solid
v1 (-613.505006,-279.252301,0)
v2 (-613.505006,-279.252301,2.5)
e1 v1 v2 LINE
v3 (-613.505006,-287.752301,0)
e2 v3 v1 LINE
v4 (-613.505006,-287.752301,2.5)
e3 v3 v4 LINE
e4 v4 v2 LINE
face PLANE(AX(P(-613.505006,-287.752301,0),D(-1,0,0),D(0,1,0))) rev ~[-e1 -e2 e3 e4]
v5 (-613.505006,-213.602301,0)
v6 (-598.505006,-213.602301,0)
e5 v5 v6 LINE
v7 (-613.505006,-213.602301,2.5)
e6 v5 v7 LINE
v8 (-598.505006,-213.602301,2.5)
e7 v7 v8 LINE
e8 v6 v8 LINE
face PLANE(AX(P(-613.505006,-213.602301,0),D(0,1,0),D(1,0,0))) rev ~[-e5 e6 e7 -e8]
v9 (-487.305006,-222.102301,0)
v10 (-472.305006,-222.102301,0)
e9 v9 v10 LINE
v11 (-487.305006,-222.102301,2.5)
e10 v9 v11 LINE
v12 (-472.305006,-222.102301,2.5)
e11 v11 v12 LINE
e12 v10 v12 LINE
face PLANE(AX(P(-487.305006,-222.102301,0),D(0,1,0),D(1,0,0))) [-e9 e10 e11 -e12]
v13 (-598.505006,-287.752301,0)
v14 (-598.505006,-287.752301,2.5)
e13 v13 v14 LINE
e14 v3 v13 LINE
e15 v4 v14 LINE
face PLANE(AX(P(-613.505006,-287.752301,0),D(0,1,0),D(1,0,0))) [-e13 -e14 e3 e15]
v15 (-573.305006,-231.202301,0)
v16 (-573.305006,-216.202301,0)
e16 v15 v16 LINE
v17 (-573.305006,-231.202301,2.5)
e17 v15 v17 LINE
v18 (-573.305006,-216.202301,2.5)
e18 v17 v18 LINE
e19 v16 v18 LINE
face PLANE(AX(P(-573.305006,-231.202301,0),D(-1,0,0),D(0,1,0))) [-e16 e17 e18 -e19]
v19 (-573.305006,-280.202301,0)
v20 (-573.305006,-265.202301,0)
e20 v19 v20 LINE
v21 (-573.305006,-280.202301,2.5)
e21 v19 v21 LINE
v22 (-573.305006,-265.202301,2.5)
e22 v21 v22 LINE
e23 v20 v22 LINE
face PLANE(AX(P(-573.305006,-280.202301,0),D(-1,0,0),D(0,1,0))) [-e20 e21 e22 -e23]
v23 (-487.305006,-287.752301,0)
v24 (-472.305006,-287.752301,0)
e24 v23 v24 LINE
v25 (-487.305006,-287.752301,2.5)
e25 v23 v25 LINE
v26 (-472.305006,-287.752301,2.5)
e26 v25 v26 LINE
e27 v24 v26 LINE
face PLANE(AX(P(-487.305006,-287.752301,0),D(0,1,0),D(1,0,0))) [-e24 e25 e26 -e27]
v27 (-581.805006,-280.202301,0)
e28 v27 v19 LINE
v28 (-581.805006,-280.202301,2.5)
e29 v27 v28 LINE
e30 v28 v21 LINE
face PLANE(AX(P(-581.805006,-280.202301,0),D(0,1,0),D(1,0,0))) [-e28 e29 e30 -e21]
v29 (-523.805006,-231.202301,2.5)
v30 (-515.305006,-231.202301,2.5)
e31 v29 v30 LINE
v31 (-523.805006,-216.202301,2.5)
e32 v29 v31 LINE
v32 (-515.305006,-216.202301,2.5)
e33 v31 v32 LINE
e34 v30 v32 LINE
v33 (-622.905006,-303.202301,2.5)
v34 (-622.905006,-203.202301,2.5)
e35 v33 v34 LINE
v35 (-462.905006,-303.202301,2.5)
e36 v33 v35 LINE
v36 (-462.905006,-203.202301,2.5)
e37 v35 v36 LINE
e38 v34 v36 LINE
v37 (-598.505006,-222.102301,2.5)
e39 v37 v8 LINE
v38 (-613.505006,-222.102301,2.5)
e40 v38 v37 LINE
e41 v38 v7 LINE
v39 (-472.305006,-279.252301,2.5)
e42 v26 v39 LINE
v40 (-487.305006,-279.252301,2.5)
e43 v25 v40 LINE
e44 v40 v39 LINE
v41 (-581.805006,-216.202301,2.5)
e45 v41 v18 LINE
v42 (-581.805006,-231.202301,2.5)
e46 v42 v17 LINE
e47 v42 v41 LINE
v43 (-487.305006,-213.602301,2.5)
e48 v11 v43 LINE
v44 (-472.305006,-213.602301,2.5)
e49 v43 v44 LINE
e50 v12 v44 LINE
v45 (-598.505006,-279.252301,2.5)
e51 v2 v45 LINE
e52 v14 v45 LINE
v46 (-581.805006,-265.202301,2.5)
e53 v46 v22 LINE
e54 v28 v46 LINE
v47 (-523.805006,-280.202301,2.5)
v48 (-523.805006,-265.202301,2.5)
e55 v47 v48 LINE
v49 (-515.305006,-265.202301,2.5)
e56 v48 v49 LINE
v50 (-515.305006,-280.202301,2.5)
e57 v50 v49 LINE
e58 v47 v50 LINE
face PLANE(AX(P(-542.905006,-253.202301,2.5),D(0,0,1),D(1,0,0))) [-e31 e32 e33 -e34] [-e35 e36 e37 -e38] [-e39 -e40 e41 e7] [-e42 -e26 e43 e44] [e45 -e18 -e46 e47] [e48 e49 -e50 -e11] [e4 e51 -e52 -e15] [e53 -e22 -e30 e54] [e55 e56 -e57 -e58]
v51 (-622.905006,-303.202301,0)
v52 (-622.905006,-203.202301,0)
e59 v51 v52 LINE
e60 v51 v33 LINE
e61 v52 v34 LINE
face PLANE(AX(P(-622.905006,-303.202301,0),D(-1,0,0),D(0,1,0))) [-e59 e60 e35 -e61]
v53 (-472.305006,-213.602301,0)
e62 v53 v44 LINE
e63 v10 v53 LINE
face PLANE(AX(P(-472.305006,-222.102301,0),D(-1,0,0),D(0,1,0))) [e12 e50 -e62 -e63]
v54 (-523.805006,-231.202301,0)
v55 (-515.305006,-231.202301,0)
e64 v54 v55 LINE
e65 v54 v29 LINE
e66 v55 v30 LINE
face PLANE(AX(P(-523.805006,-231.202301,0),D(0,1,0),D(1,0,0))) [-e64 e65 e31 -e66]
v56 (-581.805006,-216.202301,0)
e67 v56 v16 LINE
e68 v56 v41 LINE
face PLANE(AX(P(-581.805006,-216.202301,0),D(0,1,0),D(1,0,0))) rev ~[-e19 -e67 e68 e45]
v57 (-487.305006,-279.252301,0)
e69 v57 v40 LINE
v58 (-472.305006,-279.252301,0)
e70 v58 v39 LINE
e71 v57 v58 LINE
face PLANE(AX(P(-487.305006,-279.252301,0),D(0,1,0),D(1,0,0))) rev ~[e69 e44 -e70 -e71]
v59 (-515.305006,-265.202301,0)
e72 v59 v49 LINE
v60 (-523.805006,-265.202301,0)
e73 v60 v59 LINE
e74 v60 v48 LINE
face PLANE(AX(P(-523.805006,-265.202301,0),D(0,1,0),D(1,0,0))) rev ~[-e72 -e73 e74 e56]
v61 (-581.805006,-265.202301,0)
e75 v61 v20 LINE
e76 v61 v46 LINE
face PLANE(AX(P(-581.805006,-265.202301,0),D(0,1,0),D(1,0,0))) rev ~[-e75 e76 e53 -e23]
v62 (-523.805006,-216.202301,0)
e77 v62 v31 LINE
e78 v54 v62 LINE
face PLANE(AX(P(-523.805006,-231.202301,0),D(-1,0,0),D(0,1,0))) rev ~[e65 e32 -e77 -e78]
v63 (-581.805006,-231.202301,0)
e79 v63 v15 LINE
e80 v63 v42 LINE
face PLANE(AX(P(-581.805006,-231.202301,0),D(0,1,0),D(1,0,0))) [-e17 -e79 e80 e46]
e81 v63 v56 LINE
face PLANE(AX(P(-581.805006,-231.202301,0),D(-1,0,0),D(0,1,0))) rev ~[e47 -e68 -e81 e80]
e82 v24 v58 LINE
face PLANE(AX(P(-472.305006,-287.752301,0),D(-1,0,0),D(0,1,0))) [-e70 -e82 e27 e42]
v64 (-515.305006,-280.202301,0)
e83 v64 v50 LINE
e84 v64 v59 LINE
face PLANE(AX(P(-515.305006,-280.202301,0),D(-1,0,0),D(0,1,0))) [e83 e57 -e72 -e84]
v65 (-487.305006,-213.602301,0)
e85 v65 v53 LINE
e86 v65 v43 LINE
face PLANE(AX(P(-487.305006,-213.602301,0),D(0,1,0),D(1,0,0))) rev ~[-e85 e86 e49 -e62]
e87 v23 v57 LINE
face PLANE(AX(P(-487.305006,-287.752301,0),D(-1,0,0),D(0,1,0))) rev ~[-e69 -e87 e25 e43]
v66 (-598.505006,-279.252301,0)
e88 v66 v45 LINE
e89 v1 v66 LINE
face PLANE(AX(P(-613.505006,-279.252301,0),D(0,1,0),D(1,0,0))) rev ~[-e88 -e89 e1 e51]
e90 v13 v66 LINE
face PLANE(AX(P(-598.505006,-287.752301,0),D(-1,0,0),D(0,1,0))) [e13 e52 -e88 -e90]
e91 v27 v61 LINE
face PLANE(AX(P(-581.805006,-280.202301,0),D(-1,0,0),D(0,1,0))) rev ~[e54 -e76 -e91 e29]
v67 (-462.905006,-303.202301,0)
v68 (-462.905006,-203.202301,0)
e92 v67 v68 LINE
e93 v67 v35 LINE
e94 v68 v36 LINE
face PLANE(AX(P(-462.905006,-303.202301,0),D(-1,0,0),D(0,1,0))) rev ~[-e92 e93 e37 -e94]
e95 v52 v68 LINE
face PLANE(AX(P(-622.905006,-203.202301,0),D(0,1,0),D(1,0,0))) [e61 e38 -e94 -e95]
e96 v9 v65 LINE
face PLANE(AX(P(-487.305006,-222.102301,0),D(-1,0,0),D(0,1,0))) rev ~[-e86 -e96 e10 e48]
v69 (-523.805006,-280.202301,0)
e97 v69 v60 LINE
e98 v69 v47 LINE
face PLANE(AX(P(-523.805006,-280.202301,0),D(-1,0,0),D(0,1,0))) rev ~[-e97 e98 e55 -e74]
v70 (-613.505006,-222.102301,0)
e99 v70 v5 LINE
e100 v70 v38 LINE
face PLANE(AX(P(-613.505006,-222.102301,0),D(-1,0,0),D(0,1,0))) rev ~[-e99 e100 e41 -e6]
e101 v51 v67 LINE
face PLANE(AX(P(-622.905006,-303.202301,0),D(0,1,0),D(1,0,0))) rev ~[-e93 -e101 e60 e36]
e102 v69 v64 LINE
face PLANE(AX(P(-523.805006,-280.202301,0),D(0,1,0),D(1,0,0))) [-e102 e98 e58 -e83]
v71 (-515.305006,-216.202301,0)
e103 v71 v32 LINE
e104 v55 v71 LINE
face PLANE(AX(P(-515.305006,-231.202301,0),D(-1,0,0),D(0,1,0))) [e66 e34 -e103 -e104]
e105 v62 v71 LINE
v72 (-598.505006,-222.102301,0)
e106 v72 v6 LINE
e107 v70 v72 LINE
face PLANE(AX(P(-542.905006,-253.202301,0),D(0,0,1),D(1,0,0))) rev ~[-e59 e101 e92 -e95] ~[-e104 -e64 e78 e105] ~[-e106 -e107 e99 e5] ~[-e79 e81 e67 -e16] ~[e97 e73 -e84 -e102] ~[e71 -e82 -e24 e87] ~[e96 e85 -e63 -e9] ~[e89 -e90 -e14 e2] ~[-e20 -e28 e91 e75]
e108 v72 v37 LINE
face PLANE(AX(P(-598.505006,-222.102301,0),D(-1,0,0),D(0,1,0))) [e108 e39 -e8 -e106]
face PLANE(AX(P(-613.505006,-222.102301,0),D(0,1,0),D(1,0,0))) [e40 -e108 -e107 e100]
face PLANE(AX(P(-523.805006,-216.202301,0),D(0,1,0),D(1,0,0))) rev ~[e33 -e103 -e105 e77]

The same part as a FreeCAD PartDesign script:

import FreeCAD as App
import Part
import Sketcher
from FreeCAD import Vector
Q = App.Units.Quantity

doc = App.newDocument("Part")
body = doc.addObject("PartDesign::Body", "Body")

sketch1 = body.newObject("Sketcher::SketchObject", "Sketch")
sketch1.AttachmentSupport = (doc.getObject("XY_Plane"), [""])
sketch1.MapMode = "FlatFace"
sketch1.addGeometry([
    Part.LineSegment(Vector(-622.905006, -203.202301, 0), Vector(-622.905006, -303.202301, 0)),
    Part.LineSegment(Vector(-622.905006, -303.202301, 0), Vector(-462.905006, -303.202301, 0)),
    Part.LineSegment(Vector(-462.905006, -303.202301, 0), Vector(-462.905006, -203.202301, 0)),
    Part.LineSegment(Vector(-462.905006, -203.202301, 0), Vector(-622.905006, -203.202301, 0)),
    Part.LineSegment(Vector(-598.505006, -287.752301, 0), Vector(-613.505006, -287.752301, 0)),
    Part.LineSegment(Vector(-613.505006, -287.752301, 0), Vector(-613.505006, -279.252301, 0)),
    Part.LineSegment(Vector(-613.505006, -279.252301, 0), Vector(-598.505006, -279.252301, 0)),
    Part.LineSegment(Vector(-598.505006, -279.252301, 0), Vector(-598.505006, -287.752301, 0)),
    Part.LineSegment(Vector(-573.305006, -280.202301, 0), Vector(-581.805006, -280.202301, 0)),
    Part.LineSegment(Vector(-581.805006, -280.202301, 0), Vector(-581.805006, -265.202301, 0)),
    Part.LineSegment(Vector(-581.805006, -265.202301, 0), Vector(-573.305006, -265.202301, 0)),
    Part.LineSegment(Vector(-573.305006, -265.202301, 0), Vector(-573.305006, -280.202301, 0)),
    Part.LineSegment(Vector(-515.305006, -280.202301, 0), Vector(-523.805006, -280.202301, 0)),
    Part.LineSegment(Vector(-523.805006, -280.202301, 0), Vector(-523.805006, -265.202301, 0)),
    Part.LineSegment(Vector(-523.805006, -265.202301, 0), Vector(-515.305006, -265.202301, 0)),
    Part.LineSegment(Vector(-515.305006, -265.202301, 0), Vector(-515.305006, -280.202301, 0)),
    Part.LineSegment(Vector(-472.305006, -287.752301, 0), Vector(-487.305006, -287.752301, 0)),
    Part.LineSegment(Vector(-487.305006, -287.752301, 0), Vector(-487.305006, -279.252301, 0)),
    Part.LineSegment(Vector(-487.305006, -279.252301, 0), Vector(-472.305006, -279.252301, 0)),
    Part.LineSegment(Vector(-472.305006, -279.252301, 0), Vector(-472.305006, -287.752301, 0)),
    Part.LineSegment(Vector(-598.505006, -222.102301, 0), Vector(-613.505006, -222.102301, 0)),
    Part.LineSegment(Vector(-613.505006, -222.102301, 0), Vector(-613.505006, -213.602301, 0)),
    Part.LineSegment(Vector(-613.505006, -213.602301, 0), Vector(-598.505006, -213.602301, 0)),
    Part.LineSegment(Vector(-598.505006, -213.602301, 0), Vector(-598.505006, -222.102301, 0)),
    Part.LineSegment(Vector(-573.305006, -231.202301, 0), Vector(-581.805006, -231.202301, 0)),
    Part.LineSegment(Vector(-581.805006, -231.202301, 0), Vector(-581.805006, -216.202301, 0)),
    Part.LineSegment(Vector(-581.805006, -216.202301, 0), Vector(-573.305006, -216.202301, 0)),
    Part.LineSegment(Vector(-573.305006, -216.202301, 0), Vector(-573.305006, -231.202301, 0)),
    Part.LineSegment(Vector(-515.305006, -231.202301, 0), Vector(-523.805006, -231.202301, 0)),
    Part.LineSegment(Vector(-523.805006, -231.202301, 0), Vector(-523.805006, -216.202301, 0)),
    Part.LineSegment(Vector(-523.805006, -216.202301, 0), Vector(-515.305006, -216.202301, 0)),
    Part.LineSegment(Vector(-515.305006, -216.202301, 0), Vector(-515.305006, -231.202301, 0)),
    Part.LineSegment(Vector(-472.305006, -222.102301, 0), Vector(-487.305006, -222.102301, 0)),
    Part.LineSegment(Vector(-487.305006, -222.102301, 0), Vector(-487.305006, -213.602301, 0)),
    Part.LineSegment(Vector(-487.305006, -213.602301, 0), Vector(-472.305006, -213.602301, 0)),
    Part.LineSegment(Vector(-472.305006, -213.602301, 0), Vector(-472.305006, -222.102301, 0)),
], False)
sketch1.addConstraint([
    Sketcher.Constraint("Coincident", 0, 2, 1, 1),
    Sketcher.Constraint("Coincident", 1, 2, 2, 1),
    Sketcher.Constraint("Coincident", 2, 2, 3, 1),
    Sketcher.Constraint("Coincident", 3, 2, 0, 1),
    Sketcher.Constraint("Coincident", 4, 2, 5, 1),
    Sketcher.Constraint("Coincident", 5, 2, 6, 1),
    Sketcher.Constraint("Coincident", 6, 2, 7, 1),
    Sketcher.Constraint("Coincident", 7, 2, 4, 1),
    Sketcher.Constraint("Coincident", 8, 2, 9, 1),
    Sketcher.Constraint("Coincident", 9, 2, 10, 1),
    Sketcher.Constraint("Coincident", 10, 2, 11, 1),
    Sketcher.Constraint("Coincident", 11, 2, 8, 1),
    Sketcher.Constraint("Coincident", 12, 2, 13, 1),
    Sketcher.Constraint("Coincident", 13, 2, 14, 1),
    Sketcher.Constraint("Coincident", 14, 2, 15, 1),
    Sketcher.Constraint("Coincident", 15, 2, 12, 1),
    Sketcher.Constraint("Coincident", 16, 2, 17, 1),
    Sketcher.Constraint("Coincident", 17, 2, 18, 1),
    Sketcher.Constraint("Coincident", 18, 2, 19, 1),
    Sketcher.Constraint("Coincident", 19, 2, 16, 1),
    Sketcher.Constraint("Coincident", 20, 2, 21, 1),
    Sketcher.Constraint("Coincident", 21, 2, 22, 1),
    Sketcher.Constraint("Coincident", 22, 2, 23, 1),
    Sketcher.Constraint("Coincident", 23, 2, 20, 1),
    Sketcher.Constraint("Coincident", 24, 2, 25, 1),
    Sketcher.Constraint("Coincident", 25, 2, 26, 1),
    Sketcher.Constraint("Coincident", 26, 2, 27, 1),
    Sketcher.Constraint("Coincident", 27, 2, 24, 1),
    Sketcher.Constraint("Coincident", 28, 2, 29, 1),
    Sketcher.Constraint("Coincident", 29, 2, 30, 1),
    Sketcher.Constraint("Coincident", 30, 2, 31, 1),
    Sketcher.Constraint("Coincident", 31, 2, 28, 1),
    Sketcher.Constraint("Coincident", 32, 2, 33, 1),
    Sketcher.Constraint("Coincident", 33, 2, 34, 1),
    Sketcher.Constraint("Coincident", 34, 2, 35, 1),
    Sketcher.Constraint("Coincident", 35, 2, 32, 1),
    Sketcher.Constraint("Vertical", 0),
    Sketcher.Constraint("Horizontal", 1),
    Sketcher.Constraint("Vertical", 2),
    Sketcher.Constraint("Horizontal", 3),
    Sketcher.Constraint("Horizontal", 4),
    Sketcher.Constraint("Vertical", 5),
    Sketcher.Constraint("Horizontal", 6),
    Sketcher.Constraint("Vertical", 7),
    Sketcher.Constraint("Horizontal", 8),
    Sketcher.Constraint("Vertical", 9),
    Sketcher.Constraint("Horizontal", 10),
    Sketcher.Constraint("Vertical", 11),
    Sketcher.Constraint("Horizontal", 12),
    Sketcher.Constraint("Vertical", 13),
    Sketcher.Constraint("Horizontal", 14),
    Sketcher.Constraint("Vertical", 15),
    Sketcher.Constraint("Horizontal", 16),
    Sketcher.Constraint("Vertical", 17),
    Sketcher.Constraint("Horizontal", 18),
    Sketcher.Constraint("Vertical", 19),
    Sketcher.Constraint("Horizontal", 20),
    Sketcher.Constraint("Vertical", 21),
    Sketcher.Constraint("Horizontal", 22),
    Sketcher.Constraint("Vertical", 23),
    Sketcher.Constraint("Horizontal", 24),
    Sketcher.Constraint("Vertical", 25),
    Sketcher.Constraint("Horizontal", 26),
    Sketcher.Constraint("Vertical", 27),
    Sketcher.Constraint("Horizontal", 28),
    Sketcher.Constraint("Vertical", 29),
    Sketcher.Constraint("Horizontal", 30),
    Sketcher.Constraint("Vertical", 31),
    Sketcher.Constraint("Horizontal", 32),
    Sketcher.Constraint("Vertical", 33),
    Sketcher.Constraint("Horizontal", 34),
    Sketcher.Constraint("Vertical", 35),
    Sketcher.Constraint("Horizontal", 11, 2, 12, 2),
    Sketcher.Constraint("Horizontal", 10, 2, 13, 2),
    Sketcher.Constraint("Horizontal", 7, 2, 16, 2),
    Sketcher.Constraint("Horizontal", 6, 2, 17, 2),
    Sketcher.Constraint("Horizontal", 27, 2, 28, 2),
    Sketcher.Constraint("Horizontal", 26, 2, 29, 2),
    Sketcher.Constraint("Horizontal", 23, 2, 32, 2),
    Sketcher.Constraint("Horizontal", 22, 2, 33, 2),
    Sketcher.Constraint("Vertical", 5, 2, 20, 2),
    Sketcher.Constraint("Vertical", 7, 2, 22, 2),
    Sketcher.Constraint("Vertical", 9, 2, 24, 2),
    Sketcher.Constraint("Vertical", 11, 2, 26, 2),
    Sketcher.Constraint("Vertical", 13, 2, 28, 2),
    Sketcher.Constraint("Vertical", 15, 2, 30, 2),
    Sketcher.Constraint("Vertical", 17, 2, 32, 2),
    Sketcher.Constraint("Vertical", 19, 2, 34, 2),
    Sketcher.Constraint("Equal", 10, 12),
    Sketcher.Constraint("Equal", 6, 16),
    Sketcher.Constraint("Equal", 30, 5),
    Sketcher.Constraint("Equal", 34, 9),
    Sketcher.Constraint("Equal", 19, 21),
    Sketcher.Constraint("Equal", 15, 25),
    Sketcher.Constraint("DistanceX", 1, 1, 1, 2, Q("160 mm")),
    Sketcher.Constraint("DistanceX", 4, 2, 4, 1, Q("15 mm")),
    Sketcher.Constraint("DistanceY", 0, 2, 0, 1, Q("100 mm")),
    Sketcher.Constraint("DistanceX", 8, 2, 8, 1, Q("8.5 mm")),
    Sketcher.Constraint("DistanceY", 0, 2, 8, 2, Q("23 mm")),
    Sketcher.Constraint("DistanceX", 8, 2, 12, 2, Q("58 mm")),
    Sketcher.Constraint("DistanceX", 15, 2, 16, 2, Q("28 mm")),
    Sketcher.Constraint("DistanceY", 9, 2, 24, 2, Q("34 mm")),
    Sketcher.Constraint("DistanceX", 0, 2, 4, 2, Q("9.4 mm")),
    Sketcher.Constraint("DistanceX", 6, 2, 8, 2, Q("16.7 mm")),
    Sketcher.Constraint("DistanceY", 20, 2, 3, 2, Q("18.9 mm")),
    Sketcher.Constraint("DistanceY", 0, 2, 4, 2, Q("15.45 mm")),
    Sketcher.Constraint("DistanceY", 0, 2, -1, 1, Q("303.202301 mm")),
    Sketcher.Constraint("DistanceX", 0, 2, -1, 1, Q("622.905006 mm")),
])
pad1 = body.newObject("PartDesign::Pad", "Pad")
pad1.Profile = sketch1
pad1.Length = 2.5

doc.recompute()
